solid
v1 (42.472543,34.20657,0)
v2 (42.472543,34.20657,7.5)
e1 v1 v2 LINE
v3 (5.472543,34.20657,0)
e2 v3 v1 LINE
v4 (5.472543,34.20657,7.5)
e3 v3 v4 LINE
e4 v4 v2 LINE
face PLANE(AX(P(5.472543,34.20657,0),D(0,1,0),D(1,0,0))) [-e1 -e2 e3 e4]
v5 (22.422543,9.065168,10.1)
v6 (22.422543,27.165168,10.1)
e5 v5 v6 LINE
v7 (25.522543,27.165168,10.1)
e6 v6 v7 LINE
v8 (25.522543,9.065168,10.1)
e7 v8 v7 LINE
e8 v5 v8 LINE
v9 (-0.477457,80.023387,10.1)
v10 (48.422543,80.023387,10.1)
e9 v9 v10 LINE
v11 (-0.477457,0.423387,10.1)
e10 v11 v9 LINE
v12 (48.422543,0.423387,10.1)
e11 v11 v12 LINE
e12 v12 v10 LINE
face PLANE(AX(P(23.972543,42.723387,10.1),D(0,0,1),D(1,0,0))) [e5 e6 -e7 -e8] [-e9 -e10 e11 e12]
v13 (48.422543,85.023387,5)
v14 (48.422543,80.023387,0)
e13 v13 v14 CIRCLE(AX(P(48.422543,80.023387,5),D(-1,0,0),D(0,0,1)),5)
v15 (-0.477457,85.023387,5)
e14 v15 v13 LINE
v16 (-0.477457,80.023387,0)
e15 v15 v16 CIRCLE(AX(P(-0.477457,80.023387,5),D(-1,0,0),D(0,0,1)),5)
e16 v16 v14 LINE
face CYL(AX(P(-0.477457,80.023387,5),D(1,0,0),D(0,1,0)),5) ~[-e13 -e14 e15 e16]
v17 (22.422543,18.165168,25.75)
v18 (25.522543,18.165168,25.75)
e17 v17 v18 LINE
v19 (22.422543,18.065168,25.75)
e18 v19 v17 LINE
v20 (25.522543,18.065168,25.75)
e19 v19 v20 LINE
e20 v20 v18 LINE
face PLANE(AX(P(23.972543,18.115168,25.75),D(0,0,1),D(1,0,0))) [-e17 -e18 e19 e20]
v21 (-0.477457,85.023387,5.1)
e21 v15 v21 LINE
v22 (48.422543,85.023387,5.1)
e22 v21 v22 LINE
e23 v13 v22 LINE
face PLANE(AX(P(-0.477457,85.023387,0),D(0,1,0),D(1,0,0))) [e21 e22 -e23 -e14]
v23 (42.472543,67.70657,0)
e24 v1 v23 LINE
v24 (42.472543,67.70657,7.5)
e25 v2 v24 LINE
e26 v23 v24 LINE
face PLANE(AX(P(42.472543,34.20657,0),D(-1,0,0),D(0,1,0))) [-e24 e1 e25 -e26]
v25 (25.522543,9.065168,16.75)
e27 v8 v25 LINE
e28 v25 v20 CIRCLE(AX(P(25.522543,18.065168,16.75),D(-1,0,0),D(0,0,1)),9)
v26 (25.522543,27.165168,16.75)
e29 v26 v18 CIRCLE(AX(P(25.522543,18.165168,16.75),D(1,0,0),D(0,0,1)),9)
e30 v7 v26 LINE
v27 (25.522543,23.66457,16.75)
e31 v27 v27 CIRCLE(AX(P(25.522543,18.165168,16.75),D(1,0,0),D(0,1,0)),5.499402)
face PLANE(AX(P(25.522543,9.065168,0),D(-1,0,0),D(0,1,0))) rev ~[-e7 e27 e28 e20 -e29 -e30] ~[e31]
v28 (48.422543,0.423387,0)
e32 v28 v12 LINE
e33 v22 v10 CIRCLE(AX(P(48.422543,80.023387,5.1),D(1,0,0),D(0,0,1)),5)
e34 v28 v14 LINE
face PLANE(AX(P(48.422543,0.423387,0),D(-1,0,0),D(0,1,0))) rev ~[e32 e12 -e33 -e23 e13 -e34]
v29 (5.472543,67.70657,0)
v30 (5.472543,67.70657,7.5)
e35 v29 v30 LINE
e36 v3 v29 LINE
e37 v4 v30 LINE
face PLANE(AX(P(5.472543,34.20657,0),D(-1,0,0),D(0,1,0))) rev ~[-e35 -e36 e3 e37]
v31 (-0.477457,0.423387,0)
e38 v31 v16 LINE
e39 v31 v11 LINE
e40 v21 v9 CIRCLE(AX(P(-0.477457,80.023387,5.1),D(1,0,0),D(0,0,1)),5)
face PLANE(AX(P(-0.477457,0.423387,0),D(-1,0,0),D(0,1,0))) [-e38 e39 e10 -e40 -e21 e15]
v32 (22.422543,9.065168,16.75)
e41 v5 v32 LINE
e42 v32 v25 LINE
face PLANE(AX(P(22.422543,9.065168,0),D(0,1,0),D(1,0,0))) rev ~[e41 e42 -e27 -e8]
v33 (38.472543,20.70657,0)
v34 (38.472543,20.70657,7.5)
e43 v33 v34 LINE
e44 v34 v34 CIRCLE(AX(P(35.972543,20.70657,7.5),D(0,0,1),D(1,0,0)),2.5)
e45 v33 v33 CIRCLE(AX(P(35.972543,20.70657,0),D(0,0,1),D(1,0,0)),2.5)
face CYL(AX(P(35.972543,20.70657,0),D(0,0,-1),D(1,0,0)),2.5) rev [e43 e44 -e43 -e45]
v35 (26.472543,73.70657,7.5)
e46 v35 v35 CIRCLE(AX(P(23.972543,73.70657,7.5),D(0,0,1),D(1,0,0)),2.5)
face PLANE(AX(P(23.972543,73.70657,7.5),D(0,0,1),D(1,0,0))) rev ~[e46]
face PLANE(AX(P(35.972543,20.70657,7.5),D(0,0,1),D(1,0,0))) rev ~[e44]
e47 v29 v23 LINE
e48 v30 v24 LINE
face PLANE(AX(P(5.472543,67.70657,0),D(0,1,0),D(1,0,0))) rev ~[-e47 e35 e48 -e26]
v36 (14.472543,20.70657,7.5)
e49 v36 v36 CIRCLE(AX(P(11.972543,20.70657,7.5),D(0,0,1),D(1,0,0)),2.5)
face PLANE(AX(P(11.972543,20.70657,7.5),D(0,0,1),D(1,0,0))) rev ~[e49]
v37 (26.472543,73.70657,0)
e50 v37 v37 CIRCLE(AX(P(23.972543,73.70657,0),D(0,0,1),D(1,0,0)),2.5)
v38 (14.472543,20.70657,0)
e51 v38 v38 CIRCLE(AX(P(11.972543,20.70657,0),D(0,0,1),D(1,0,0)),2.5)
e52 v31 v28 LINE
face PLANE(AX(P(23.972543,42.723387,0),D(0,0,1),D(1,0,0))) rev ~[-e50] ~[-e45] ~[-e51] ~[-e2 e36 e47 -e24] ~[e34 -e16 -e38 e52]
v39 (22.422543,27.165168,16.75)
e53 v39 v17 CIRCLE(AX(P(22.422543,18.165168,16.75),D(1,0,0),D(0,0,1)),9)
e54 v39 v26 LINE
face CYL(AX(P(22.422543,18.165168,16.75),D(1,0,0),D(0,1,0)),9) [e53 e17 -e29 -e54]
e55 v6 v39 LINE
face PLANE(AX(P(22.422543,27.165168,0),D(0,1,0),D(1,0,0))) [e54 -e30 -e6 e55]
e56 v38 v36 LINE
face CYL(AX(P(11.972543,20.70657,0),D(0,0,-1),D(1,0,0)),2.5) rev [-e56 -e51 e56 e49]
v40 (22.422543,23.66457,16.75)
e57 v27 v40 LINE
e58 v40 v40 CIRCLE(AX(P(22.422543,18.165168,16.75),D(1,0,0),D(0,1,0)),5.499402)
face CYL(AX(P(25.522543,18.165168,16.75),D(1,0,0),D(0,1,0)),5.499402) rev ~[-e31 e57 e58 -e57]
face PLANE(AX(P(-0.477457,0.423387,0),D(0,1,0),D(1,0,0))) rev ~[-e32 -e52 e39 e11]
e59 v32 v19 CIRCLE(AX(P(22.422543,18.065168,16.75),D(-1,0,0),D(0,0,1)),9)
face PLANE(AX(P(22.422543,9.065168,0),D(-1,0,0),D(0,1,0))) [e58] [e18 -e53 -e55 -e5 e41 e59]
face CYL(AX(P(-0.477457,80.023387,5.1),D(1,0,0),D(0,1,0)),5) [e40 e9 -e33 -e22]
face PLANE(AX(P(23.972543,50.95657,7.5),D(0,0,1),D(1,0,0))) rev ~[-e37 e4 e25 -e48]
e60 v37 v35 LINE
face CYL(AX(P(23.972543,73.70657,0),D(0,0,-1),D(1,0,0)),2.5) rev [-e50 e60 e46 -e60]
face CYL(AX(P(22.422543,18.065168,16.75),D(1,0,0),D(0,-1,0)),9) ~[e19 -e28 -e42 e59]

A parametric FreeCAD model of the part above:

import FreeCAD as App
import Part
import Sketcher
from FreeCAD import Vector


def edges_at(feature, points):
    """Names of the edges that pass closest to the given points."""
    edges = feature.Shape.Edges
    near = lambda p: min(range(len(edges)), key=lambda i: edges[i].distToShape(Part.Vertex(*p))[0])
    return sorted({f"Edge{near(p) + 1}" for p in points})


def add_polygon(sketch, points):
    """Adds a closed chain of lines whose ends are joined by coincident constraints."""
    first, n = sketch.GeometryCount, len(points)
    for a, b in zip(points, points[1:] + points[:1]):
        sketch.addGeometry(Part.LineSegment(App.Vector(*a, 0), App.Vector(*b, 0)), False)
    for i in range(n):
        sketch.addConstraint(Sketcher.Constraint("Coincident", first + i, 2, first + (i + 1) % n, 1))

doc = App.newDocument("Part")
body = doc.addObject("PartDesign::Body", "Body")

sketch1 = body.newObject("Sketcher::SketchObject", "Sketch")
sketch1.AttachmentSupport = (doc.getObject("XY_Plane"), [""])
sketch1.MapMode = "FlatFace"
add_polygon(sketch1, [(22.4, 27.2), (22.4, 9.1), (25.5, 9.1), (25.5, 27.2)])
sketch1.addConstraint(Sketcher.Constraint("Vertical", 0))
sketch1.addConstraint(Sketcher.Constraint("Horizontal", 1))
sketch1.addConstraint(Sketcher.Constraint("Vertical", 2))
sketch1.addConstraint(Sketcher.Constraint("Horizontal", 3))
sketch1.addConstraint(Sketcher.Constraint("DistanceX", 1, 1, 1, 2, 3.1))
sketch1.addConstraint(Sketcher.Constraint("DistanceY", 0, 2, 0, 1, 18.1))
sketch1.addConstraint(Sketcher.Constraint("DistanceY", -1, 1, 2, 2, 27.165168))
sketch1.addConstraint(Sketcher.Constraint("DistanceX", -1, 1, 0, 2, 22.422543))
pad1 = body.newObject("PartDesign::Pad", "Pad")
pad1.Profile = sketch1
pad1.Length = 25.75

sketch2 = body.newObject("Sketcher::SketchObject", "Sketch001")
sketch2.AttachmentSupport = (doc.getObject("XY_Plane"), [""])
sketch2.MapMode = "FlatFace"
add_polygon(sketch2, [(-0.5, 85), (-0.5, 0.4), (48.4, 0.4), (48.4, 85)])
add_polygon(sketch2, [(25.5, 9.1), (22.4, 9.1), (22.4, 27.2), (25.5, 27.2)])
sketch2.addConstraint(Sketcher.Constraint("Vertical", 0))
sketch2.addConstraint(Sketcher.Constraint("Horizontal", 1))
sketch2.addConstraint(Sketcher.Constraint("Vertical", 2))
sketch2.addConstraint(Sketcher.Constraint("Horizontal", 3))
sketch2.addConstraint(Sketcher.Constraint("Horizontal", 4))
sketch2.addConstraint(Sketcher.Constraint("Vertical", 5))
sketch2.addConstraint(Sketcher.Constraint("Horizontal", 6))
sketch2.addConstraint(Sketcher.Constraint("Vertical", 7))
sketch2.addConstraint(Sketcher.Constraint("DistanceX", 1, 1, 1, 2, 48.9))
sketch2.addConstraint(Sketcher.Constraint("DistanceX", 4, 2, 4, 1, 3.1))
sketch2.addConstraint(Sketcher.Constraint("DistanceY", 0, 2, 0, 1, 84.6))
sketch2.addConstraint(Sketcher.Constraint("DistanceY", 5, 1, 5, 2, 18.1))
sketch2.addConstraint(Sketcher.Constraint("DistanceX", 4, 2, 1, 2, 26.0))
sketch2.addConstraint(Sketcher.Constraint("DistanceY", -1, 1, 5, 2, 27.165168))
sketch2.addConstraint(Sketcher.Constraint("DistanceY", 0, 2, 4, 2, 8.641781))
sketch2.addConstraint(Sketcher.Constraint("DistanceX", 0, 2, -1, 1, 0.477457))
pad2 = body.newObject("PartDesign::Pad", "Pad001")
pad2.Profile = sketch2
pad2.Length = 10.1
doc.recompute()

fillet = body.newObject("PartDesign::Fillet", "Fillet")
fillet.Base = (pad2, edges_at(pad2, [(23.973, 85.023, 10.1), (23.973, 85.023, 0)]))
fillet.Radius = 5
doc.recompute()

fillet2 = body.newObject("PartDesign::Fillet", "Fillet001")
fillet2.Base = (fillet, edges_at(fillet, [(23.973, 9.065, 25.75), (23.973, 27.165, 25.75)]))
fillet2.Radius = 9

sketch3 = body.newObject("Sketcher::SketchObject", "Sketch002")
sketch3.AttachmentSupport = (doc.getObject("YZ_Plane"), [""])
sketch3.MapMode = "FlatFace"
sketch3.AttachmentOffset = App.Placement(Vector(0, 0, 25.522543), App.Rotation())
sketch3.addGeometry(Part.Circle(Vector(18, 17, 0), Vector(0, 0, 1), 5), False)
sketch3.addConstraint(Sketcher.Constraint("DistanceY", -1, 1, 0, 3, 16.75))
sketch3.addConstraint(Sketcher.Constraint("Diameter", 0, 10.998804))
sketch3.addConstraint(Sketcher.Constraint("DistanceX", -1, 1, 0, 3, 18.165168))
pocket1 = body.newObject("PartDesign::Pocket", "Pocket")
pocket1.Profile = sketch3
pocket1.Type = "ThroughAll"

sketch4 = body.newObject("Sketcher::SketchObject", "Sketch003")
sketch4.AttachmentSupport = (doc.getObject("XY_Plane"), [""])
sketch4.MapMode = "FlatFace"
sketch4.addGeometry(Part.Circle(Vector(24, 73.7, 0), Vector(0, 0, 1), 2.5), False)
sketch4.addGeometry(Part.Circle(Vector(36, 20.7, 0), Vector(0, 0, 1), 2.5), False)
sketch4.addGeometry(Part.Circle(Vector(12, 20.7, 0), Vector(0, 0, 1), 2.5), False)
add_polygon(sketch4, [(5.5, 67.7), (5.5, 34.2), (42.5, 34.2), (42.5, 67.7)])
sketch4.addConstraint(Sketcher.Constraint("Vertical", 3))
sketch4.addConstraint(Sketcher.Constraint("Horizontal", 4))
sketch4.addConstraint(Sketcher.Constraint("Vertical", 5))
sketch4.addConstraint(Sketcher.Constraint("Horizontal", 6))
sketch4.addConstraint(Sketcher.Constraint("Equal", 0, 1))
sketch4.addConstraint(Sketcher.Constraint("Equal", 1, 2))
sketch4.addConstraint(Sketcher.Constraint("Horizontal", 1, 3, 2, 3))
sketch4.addConstraint(Sketcher.Constraint("Diameter", 0, 5.0))
sketch4.addConstraint(Sketcher.Constraint("DistanceX", 4, 1, 4, 2, 37.0))
sketch4.addConstraint(Sketcher.Constraint("DistanceY", 3, 2, 3, 1, 33.5))
sketch4.addConstraint(Sketcher.Constraint("DistanceX", 0, 3, 1, 3, 12.0))
sketch4.addConstraint(Sketcher.Constraint("DistanceY", 1, 3, 0, 3, 53.0))
sketch4.addConstraint(Sketcher.Constraint("DistanceX", 2, 3, 1, 3, 24.0))
sketch4.addConstraint(Sketcher.Constraint("DistanceY", 5, 2, 0, 3, 6.0))
sketch4.addConstraint(Sketcher.Constraint("DistanceX", 3, 2, 2, 3, 6.5))
sketch4.addConstraint(Sketcher.Constraint("DistanceY", -1, 1, 0, 3, 73.70657))
sketch4.addConstraint(Sketcher.Constraint("DistanceX", -1, 1, 0, 3, 23.972543))
pocket2 = body.newObject("PartDesign::Pocket", "Pocket001")
pocket2.Profile = sketch4
pocket2.Length = 7.5
pocket2.Reversed = True

doc.recompute()
